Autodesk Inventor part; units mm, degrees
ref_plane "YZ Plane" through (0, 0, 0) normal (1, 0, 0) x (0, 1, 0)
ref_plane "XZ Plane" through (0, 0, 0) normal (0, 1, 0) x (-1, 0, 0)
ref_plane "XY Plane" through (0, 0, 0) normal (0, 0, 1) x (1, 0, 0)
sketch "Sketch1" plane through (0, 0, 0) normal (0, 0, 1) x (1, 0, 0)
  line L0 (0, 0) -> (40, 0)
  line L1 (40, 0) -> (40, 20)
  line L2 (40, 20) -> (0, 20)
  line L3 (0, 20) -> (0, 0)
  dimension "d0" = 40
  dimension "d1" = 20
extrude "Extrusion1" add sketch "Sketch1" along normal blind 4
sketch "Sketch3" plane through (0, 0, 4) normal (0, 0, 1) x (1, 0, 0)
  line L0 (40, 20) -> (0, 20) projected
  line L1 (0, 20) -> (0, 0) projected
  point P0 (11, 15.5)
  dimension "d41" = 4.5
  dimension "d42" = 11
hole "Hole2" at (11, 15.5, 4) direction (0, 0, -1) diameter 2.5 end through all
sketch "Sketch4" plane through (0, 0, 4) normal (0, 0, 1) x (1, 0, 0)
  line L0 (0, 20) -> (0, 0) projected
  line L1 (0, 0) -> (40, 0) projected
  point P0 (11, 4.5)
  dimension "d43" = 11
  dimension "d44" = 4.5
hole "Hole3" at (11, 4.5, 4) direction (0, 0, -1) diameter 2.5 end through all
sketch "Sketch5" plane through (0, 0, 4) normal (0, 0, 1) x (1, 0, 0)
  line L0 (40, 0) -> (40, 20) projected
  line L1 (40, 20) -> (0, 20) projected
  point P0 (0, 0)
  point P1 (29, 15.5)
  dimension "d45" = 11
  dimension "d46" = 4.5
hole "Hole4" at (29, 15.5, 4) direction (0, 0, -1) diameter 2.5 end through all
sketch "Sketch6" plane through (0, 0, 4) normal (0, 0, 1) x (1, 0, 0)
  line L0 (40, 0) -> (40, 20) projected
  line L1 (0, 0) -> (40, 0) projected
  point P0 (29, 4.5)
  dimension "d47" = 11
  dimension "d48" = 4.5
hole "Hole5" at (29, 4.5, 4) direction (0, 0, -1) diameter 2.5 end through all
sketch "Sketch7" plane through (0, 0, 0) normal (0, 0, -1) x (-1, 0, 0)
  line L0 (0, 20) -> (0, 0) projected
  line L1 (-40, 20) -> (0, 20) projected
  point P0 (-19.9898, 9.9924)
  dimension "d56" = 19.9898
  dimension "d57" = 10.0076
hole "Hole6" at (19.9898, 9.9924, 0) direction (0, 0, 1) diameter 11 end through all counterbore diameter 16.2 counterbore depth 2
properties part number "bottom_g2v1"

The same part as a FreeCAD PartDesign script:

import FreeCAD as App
import Part
import Sketcher
Q = App.Units.Quantity

doc = App.newDocument("Part")
body = doc.addObject("PartDesign::Body", "Body")

# Sketch on XY plane
sketch1 = body.newObject("Sketcher::SketchObject", "Sketch")
sketch1.AttachmentSupport = (doc.getObject("XY_Plane"), [""])
sketch1.MapMode = "FlatFace"
sketch1.addGeometry(Part.LineSegment(App.Vector(0, 20, 0), App.Vector(0, 0, 0)), False)
sketch1.addGeometry(Part.LineSegment(App.Vector(0, 0, 0), App.Vector(40, 0, 0)), False)
sketch1.addGeometry(Part.LineSegment(App.Vector(40, 0, 0), App.Vector(40, 20, 0)), False)
sketch1.addGeometry(Part.LineSegment(App.Vector(40, 20, 0), App.Vector(0, 20, 0)), False)
sketch1.addConstraint(Sketcher.Constraint("Coincident", 0, 2, 1, 1))
sketch1.addConstraint(Sketcher.Constraint("Coincident", 1, 2, 2, 1))
sketch1.addConstraint(Sketcher.Constraint("Coincident", 2, 2, 3, 1))
sketch1.addConstraint(Sketcher.Constraint("Coincident", 3, 2, 0, 1))
sketch1.addConstraint(Sketcher.Constraint("Vertical", 0))
sketch1.addConstraint(Sketcher.Constraint("Horizontal", 1))
sketch1.addConstraint(Sketcher.Constraint("Vertical", 2))
sketch1.addConstraint(Sketcher.Constraint("Horizontal", 3))
sketch1.addConstraint(Sketcher.Constraint("Coincident", 0, 2, -1, 1))
sketch1.addConstraint(Sketcher.Constraint("DistanceX", 1, 1, 1, 2, Q("40 mm")))
sketch1.addConstraint(Sketcher.Constraint("DistanceY", 0, 2, 0, 1, Q("20 mm")))
pad1 = body.newObject("PartDesign::Pad", "Pad")
pad1.Profile = sketch1
pad1.Length = 4

# Sketch on XY plane
sketch2 = body.newObject("Sketcher::SketchObject", "Sketch001")
sketch2.AttachmentSupport = (doc.getObject("XY_Plane"), [""])
sketch2.MapMode = "FlatFace"
sketch2.AttachmentOffset = App.Placement(App.Vector(0, 0, 4), App.Rotation())
sketch2.addGeometry(Part.Circle(App.Vector(11, 15.5, 0), App.Vector(0, 0, 1), 1.2), False)
sketch2.addConstraint(Sketcher.Constraint("Diameter", 0, Q("2.5 mm")))
sketch2.addConstraint(Sketcher.Constraint("DistanceX", -1, 1, 0, 3, Q("11 mm")))
sketch2.addConstraint(Sketcher.Constraint("DistanceY", -1, 1, 0, 3, Q("15.5 mm")))
doc.recompute()
hole = body.newObject("PartDesign::Hole", "Hole")
hole.Profile = sketch2
hole.ThreadType = "None"
hole.Diameter = 2.5
hole.DepthType = "ThroughAll"

# Sketch on XY plane
sketch3 = body.newObject("Sketcher::SketchObject", "Sketch002")
sketch3.AttachmentSupport = (doc.getObject("XY_Plane"), [""])
sketch3.MapMode = "FlatFace"
sketch3.AttachmentOffset = App.Placement(App.Vector(0, 0, 4), App.Rotation())
sketch3.addGeometry(Part.Circle(App.Vector(11, 4.5, 0), App.Vector(0, 0, 1), 1.2), False)
sketch3.addConstraint(Sketcher.Constraint("Diameter", 0, Q("2.5 mm")))
sketch3.addConstraint(Sketcher.Constraint("DistanceX", -1, 1, 0, 3, Q("11 mm")))
sketch3.addConstraint(Sketcher.Constraint("DistanceY", -1, 1, 0, 3, Q("4.5 mm")))
doc.recompute()
hole2 = body.newObject("PartDesign::Hole", "Hole001")
hole2.Profile = sketch3
hole2.ThreadType = "None"
hole2.Diameter = 2.5
hole2.DepthType = "ThroughAll"

# Sketch on XY plane
sketch4 = body.newObject("Sketcher::SketchObject", "Sketch003")
sketch4.AttachmentSupport = (doc.getObject("XY_Plane"), [""])
sketch4.MapMode = "FlatFace"
sketch4.AttachmentOffset = App.Placement(App.Vector(0, 0, 4), App.Rotation())
sketch4.addGeometry(Part.Circle(App.Vector(29, 15.5, 0), App.Vector(0, 0, 1), 1.2), False)
sketch4.addConstraint(Sketcher.Constraint("Diameter", 0, Q("2.5 mm")))
sketch4.addConstraint(Sketcher.Constraint("DistanceX", -1, 1, 0, 3, Q("29 mm")))
sketch4.addConstraint(Sketcher.Constraint("DistanceY", -1, 1, 0, 3, Q("15.5 mm")))
doc.recompute()
hole3 = body.newObject("PartDesign::Hole", "Hole002")
hole3.Profile = sketch4
hole3.ThreadType = "None"
hole3.Diameter = 2.5
hole3.DepthType = "ThroughAll"

# Sketch on XY plane
sketch5 = body.newObject("Sketcher::SketchObject", "Sketch004")
sketch5.AttachmentSupport = (doc.getObject("XY_Plane"), [""])
sketch5.MapMode = "FlatFace"
sketch5.AttachmentOffset = App.Placement(App.Vector(0, 0, 4), App.Rotation())
sketch5.addGeometry(Part.Circle(App.Vector(29, 4.5, 0), App.Vector(0, 0, 1), 1.2), False)
sketch5.addConstraint(Sketcher.Constraint("Diameter", 0, Q("2.5 mm")))
sketch5.addConstraint(Sketcher.Constraint("DistanceX", -1, 1, 0, 3, Q("29 mm")))
sketch5.addConstraint(Sketcher.Constraint("DistanceY", -1, 1, 0, 3, Q("4.5 mm")))
doc.recompute()
hole4 = body.newObject("PartDesign::Hole", "Hole003")
hole4.Profile = sketch5
hole4.ThreadType = "None"
hole4.Diameter = 2.5
hole4.DepthType = "ThroughAll"

# Sketch on XY plane
sketch6 = body.newObject("Sketcher::SketchObject", "Sketch005")
sketch6.AttachmentSupport = (doc.getObject("XY_Plane"), [""])
sketch6.MapMode = "FlatFace"
sketch6.addGeometry(Part.Circle(App.Vector(20, 10, 0), App.Vector(0, 0, 1), 6), False)
sketch6.addConstraint(Sketcher.Constraint("Diameter", 0, Q("11 mm")))
sketch6.addConstraint(Sketcher.Constraint("DistanceX", -1, 1, 0, 3, Q("19.9898 mm")))
sketch6.addConstraint(Sketcher.Constraint("DistanceY", -1, 1, 0, 3, Q("9.9924 mm")))
doc.recompute()
hole5 = body.newObject("PartDesign::Hole", "Hole004")
hole5.Profile = sketch6
hole5.ThreadType = "None"
hole5.Diameter = 11
hole5.DepthType = "ThroughAll"
hole5.HoleCutType = "Counterbore"
hole5.HoleCutDiameter = 16.2
hole5.HoleCutDepth = 2
hole5.Reversed = True

doc.recompute()
